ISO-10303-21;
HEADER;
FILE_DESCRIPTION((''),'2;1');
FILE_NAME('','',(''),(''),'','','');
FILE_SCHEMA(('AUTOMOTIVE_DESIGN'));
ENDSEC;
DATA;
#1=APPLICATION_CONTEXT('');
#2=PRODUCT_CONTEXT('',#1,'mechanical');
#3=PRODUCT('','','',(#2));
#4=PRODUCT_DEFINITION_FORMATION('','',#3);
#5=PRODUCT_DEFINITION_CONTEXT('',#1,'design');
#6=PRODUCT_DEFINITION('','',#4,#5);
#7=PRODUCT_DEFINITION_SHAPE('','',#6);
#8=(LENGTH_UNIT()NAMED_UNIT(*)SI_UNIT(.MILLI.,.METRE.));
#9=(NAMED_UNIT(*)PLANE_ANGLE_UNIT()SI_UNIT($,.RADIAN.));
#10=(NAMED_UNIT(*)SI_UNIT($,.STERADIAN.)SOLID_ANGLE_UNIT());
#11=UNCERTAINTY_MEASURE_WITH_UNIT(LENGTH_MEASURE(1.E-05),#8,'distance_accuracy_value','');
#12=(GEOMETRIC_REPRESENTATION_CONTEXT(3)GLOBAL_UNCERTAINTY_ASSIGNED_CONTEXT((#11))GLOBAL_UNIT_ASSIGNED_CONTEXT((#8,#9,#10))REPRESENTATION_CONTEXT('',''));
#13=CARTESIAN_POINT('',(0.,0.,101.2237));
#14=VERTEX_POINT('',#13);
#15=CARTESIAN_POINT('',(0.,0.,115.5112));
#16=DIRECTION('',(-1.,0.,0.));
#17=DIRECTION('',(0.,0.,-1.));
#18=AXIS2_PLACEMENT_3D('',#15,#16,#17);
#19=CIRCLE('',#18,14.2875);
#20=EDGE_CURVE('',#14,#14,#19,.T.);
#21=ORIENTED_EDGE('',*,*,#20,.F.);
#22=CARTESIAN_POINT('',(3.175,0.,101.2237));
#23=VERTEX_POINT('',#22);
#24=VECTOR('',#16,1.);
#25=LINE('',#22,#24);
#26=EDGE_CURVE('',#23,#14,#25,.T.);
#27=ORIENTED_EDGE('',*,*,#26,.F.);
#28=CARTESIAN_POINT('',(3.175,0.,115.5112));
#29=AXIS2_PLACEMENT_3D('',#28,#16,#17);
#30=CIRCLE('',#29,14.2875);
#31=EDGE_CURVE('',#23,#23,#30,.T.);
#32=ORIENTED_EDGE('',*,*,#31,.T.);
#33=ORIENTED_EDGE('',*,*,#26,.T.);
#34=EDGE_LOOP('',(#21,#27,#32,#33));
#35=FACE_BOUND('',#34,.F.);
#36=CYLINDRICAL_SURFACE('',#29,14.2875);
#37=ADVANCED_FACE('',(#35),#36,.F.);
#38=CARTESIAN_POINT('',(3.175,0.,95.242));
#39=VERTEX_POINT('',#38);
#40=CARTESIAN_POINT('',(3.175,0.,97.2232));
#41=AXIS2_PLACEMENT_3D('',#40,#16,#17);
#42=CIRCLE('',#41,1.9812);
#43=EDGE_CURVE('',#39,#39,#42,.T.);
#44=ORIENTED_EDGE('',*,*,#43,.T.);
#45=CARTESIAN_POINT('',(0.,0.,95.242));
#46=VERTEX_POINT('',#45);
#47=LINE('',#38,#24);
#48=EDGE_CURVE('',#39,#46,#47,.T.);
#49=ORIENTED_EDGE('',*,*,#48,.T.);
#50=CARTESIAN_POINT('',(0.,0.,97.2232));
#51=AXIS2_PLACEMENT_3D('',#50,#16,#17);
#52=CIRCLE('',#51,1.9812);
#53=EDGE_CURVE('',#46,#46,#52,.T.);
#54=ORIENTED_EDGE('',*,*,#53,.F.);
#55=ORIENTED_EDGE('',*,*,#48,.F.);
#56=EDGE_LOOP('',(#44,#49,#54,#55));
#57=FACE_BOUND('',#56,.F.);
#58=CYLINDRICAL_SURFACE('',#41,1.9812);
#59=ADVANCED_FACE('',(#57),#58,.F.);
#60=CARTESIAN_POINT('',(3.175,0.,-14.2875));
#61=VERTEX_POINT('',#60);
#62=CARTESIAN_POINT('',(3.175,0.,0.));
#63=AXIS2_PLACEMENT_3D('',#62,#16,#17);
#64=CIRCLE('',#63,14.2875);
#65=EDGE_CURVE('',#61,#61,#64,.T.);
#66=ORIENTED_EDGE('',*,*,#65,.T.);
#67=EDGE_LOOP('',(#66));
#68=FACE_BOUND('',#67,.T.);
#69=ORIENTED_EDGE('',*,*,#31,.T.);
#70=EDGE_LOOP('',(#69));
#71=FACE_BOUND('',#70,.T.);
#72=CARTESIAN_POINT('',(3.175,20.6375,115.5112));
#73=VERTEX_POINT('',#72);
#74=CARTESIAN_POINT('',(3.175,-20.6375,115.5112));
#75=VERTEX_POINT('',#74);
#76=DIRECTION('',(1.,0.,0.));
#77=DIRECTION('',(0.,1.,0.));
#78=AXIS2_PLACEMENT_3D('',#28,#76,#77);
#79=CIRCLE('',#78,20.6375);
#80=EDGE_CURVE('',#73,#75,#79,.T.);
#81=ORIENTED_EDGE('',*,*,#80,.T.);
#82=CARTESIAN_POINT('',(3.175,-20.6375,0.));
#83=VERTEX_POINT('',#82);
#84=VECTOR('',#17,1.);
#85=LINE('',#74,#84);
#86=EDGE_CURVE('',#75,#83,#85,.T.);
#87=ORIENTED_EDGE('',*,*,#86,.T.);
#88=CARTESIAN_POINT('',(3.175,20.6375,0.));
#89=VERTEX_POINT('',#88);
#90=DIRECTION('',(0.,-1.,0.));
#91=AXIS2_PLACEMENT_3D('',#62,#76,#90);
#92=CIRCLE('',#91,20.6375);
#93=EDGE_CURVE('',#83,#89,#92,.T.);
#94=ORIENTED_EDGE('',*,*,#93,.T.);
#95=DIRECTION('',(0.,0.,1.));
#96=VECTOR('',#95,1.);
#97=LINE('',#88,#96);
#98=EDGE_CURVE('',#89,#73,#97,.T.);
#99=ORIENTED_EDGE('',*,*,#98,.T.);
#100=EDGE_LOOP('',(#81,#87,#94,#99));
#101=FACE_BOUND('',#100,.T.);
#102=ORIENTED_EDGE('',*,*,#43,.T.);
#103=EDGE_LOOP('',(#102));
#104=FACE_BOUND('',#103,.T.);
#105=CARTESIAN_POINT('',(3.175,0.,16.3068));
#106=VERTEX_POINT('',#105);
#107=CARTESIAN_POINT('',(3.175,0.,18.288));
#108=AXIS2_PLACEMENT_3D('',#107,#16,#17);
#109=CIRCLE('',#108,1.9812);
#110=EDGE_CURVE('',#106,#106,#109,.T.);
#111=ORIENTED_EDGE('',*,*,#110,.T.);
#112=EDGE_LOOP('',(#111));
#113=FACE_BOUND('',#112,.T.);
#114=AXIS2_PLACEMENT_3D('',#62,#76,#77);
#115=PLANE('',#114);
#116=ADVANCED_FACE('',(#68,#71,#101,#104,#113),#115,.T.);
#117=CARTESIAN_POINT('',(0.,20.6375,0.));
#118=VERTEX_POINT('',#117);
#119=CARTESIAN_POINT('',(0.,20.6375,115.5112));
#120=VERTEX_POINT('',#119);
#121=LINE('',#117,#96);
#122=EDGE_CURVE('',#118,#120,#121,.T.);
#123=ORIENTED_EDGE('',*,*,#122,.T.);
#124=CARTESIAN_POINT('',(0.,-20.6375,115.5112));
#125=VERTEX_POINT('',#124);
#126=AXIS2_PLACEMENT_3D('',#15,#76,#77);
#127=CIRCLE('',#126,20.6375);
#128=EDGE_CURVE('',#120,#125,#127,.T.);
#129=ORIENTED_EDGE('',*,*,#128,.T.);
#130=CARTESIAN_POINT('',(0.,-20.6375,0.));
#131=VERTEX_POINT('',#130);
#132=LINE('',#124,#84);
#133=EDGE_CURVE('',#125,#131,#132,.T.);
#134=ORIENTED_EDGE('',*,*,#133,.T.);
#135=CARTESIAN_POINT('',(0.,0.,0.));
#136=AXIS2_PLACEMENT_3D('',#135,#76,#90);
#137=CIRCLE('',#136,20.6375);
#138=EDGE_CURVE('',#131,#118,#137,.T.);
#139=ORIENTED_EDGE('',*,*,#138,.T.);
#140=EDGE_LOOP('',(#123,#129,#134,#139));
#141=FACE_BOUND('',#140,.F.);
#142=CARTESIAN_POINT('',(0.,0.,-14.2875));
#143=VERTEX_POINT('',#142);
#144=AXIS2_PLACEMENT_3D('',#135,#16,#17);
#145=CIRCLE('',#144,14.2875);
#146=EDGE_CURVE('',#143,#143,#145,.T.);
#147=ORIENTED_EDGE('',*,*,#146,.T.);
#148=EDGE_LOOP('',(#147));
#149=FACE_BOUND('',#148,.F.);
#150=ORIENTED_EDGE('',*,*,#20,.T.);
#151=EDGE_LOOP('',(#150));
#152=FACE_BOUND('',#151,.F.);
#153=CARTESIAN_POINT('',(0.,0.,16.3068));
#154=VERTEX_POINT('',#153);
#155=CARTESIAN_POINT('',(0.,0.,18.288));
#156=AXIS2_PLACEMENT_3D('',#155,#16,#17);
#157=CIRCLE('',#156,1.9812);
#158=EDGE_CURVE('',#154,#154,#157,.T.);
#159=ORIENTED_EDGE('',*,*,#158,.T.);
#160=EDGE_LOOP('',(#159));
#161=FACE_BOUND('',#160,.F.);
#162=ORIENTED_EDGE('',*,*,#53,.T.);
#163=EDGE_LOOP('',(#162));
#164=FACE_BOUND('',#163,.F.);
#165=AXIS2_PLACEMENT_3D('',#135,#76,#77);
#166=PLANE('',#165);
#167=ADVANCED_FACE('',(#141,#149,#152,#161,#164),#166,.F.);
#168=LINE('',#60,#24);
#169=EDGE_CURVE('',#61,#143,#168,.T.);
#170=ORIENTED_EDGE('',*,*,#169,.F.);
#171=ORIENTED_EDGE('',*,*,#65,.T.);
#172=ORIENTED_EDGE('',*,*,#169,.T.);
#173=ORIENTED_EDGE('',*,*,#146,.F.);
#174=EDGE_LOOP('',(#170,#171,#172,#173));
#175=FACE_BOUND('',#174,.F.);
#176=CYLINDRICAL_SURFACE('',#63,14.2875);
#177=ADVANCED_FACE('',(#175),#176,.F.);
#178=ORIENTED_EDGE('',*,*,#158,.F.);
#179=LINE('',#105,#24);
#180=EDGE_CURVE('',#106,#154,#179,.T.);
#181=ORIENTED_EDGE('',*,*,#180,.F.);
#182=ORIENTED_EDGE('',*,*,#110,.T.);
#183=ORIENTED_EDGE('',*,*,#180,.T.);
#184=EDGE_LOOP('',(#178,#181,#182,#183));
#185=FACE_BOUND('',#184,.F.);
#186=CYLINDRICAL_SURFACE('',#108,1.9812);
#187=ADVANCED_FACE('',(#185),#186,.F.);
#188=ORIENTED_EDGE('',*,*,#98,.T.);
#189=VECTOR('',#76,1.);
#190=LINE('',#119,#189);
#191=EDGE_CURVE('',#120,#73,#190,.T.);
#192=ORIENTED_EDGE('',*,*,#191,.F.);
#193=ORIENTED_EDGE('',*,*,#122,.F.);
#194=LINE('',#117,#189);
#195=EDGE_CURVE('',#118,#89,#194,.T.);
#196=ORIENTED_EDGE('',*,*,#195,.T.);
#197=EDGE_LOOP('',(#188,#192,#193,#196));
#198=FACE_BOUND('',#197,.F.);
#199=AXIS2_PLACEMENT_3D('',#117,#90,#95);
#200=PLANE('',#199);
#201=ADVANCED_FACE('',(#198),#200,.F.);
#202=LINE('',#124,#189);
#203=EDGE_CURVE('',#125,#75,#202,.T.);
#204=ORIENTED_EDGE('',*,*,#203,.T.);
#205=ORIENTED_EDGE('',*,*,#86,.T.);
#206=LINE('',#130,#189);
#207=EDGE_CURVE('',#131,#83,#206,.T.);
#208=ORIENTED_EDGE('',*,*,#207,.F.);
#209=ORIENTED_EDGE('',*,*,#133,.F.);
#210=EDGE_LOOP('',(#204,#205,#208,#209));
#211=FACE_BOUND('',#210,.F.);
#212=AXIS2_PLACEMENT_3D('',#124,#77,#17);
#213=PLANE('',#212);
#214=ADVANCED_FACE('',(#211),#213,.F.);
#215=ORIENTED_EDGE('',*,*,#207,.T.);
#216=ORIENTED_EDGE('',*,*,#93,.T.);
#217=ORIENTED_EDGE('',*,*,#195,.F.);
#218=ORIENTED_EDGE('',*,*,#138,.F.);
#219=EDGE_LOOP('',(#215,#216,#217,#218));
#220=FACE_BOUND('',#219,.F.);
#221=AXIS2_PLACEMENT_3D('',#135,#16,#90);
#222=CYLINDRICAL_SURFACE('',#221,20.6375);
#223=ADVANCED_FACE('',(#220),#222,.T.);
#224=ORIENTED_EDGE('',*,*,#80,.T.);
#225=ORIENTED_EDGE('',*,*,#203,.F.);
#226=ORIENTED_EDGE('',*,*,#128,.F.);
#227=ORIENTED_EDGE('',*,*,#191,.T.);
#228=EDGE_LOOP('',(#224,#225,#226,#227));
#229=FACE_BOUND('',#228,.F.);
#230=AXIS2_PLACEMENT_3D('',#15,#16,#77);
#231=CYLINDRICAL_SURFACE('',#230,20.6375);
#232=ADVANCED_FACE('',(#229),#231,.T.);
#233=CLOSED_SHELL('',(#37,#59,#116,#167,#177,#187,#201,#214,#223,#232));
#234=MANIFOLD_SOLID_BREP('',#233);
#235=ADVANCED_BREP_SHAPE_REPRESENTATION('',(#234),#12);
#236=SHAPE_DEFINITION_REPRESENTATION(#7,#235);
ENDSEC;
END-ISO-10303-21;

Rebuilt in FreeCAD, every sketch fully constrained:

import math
import FreeCAD as App
import Part
import Sketcher

V = App.Vector
Q = App.Units.Quantity

doc = App.newDocument("Part")
params = doc.addObject("Spreadsheet::Sheet", "Params")
for row, (alias, value) in enumerate([
    ("sketch1_radius", "0.8125 in"),
    ("pad1_length", "0.125 in"),
    ("sketch2_diameter", "1.125 in"),
    ("hole_diameter", "1.125 in"),
    ("hole_depth", "0.125 in"),
    ("sketch3_diameter", "0.156 in"),
    ("hole2_diameter", "0.156 in"),
    ("hole2_depth", "0.536 in"),
], start=1):
    params.set(f"A{row}", alias)
    params.set(f"B{row}", "=" + value)
    params.setAlias(f"B{row}", alias)

body = doc.addObject("PartDesign::Body", "Body")

sketch1 = body.newObject("Sketcher::SketchObject", "Sketch")
sketch1.AttachmentSupport = (doc.getObject("YZ_Plane"), [""])
sketch1.MapMode = "FlatFace"
sketch1.addGeometry([
    Part.LineSegment(V(-20.6375, 115.5112, 0), V(-20.6375, 0, 0)),
    Part.ArcOfCircle(Part.Circle(V(0, 0, 0), V(0, 0, 1), 20.6375), math.radians(180), math.radians(360)),
    Part.LineSegment(V(20.6375, 0, 0), V(20.6375, 115.5112, 0)),
    Part.ArcOfCircle(Part.Circle(V(0, 115.5112, 0), V(0, 0, 1), 20.6375), math.radians(0), math.radians(180)),
], False)
sketch1.addConstraint([
    Sketcher.Constraint("Tangent", 0, 2, 1, 1),
    Sketcher.Constraint("Tangent", 1, 2, 2, 1),
    Sketcher.Constraint("Tangent", 2, 2, 3, 1),
    Sketcher.Constraint("Tangent", 3, 2, 0, 1),
    Sketcher.Constraint("Vertical", 0),
    Sketcher.Constraint("Vertical", 2),
    Sketcher.Constraint("Coincident", 1, 3, -1, 1),
    Sketcher.Constraint("Radius", 1, Q("0.8125 in")),
    Sketcher.Constraint("DistanceY", 0, 2, 0, 1, 115.5112),
])
sketch1.setExpression("Constraints[7]", "Params.sketch1_radius")
pad1 = body.newObject("PartDesign::Pad", "Pad")
pad1.Profile = sketch1
pad1.setExpression("Length", "Params.pad1_length")

sketch2 = body.newObject("Sketcher::SketchObject", "Sketch001")
sketch2.AttachmentSupport = (doc.getObject("YZ_Plane"), [""])
sketch2.MapMode = "FlatFace"
sketch2.AttachmentOffset = App.Placement(V(0, 0, 0.125 * 25.4), App.Rotation())
sketch2.addGeometry([
    Part.Circle(V(0, 0, 0), V(0, 0, 1), 14.2875),
    Part.Circle(V(0, 115.5112, 0), V(0, 0, 1), 14.2875),
], False)
sketch2.addConstraint([
    Sketcher.Constraint("Coincident", 0, 3, -1, 1),
    Sketcher.Constraint("Equal", 0, 1),
    Sketcher.Constraint("PointOnObject", 1, 3, -2),
    Sketcher.Constraint("Diameter", 0, Q("1.125 in")),
    Sketcher.Constraint("DistanceY", -1, 1, 1, 3, 115.5112),
])
sketch2.setExpression("Constraints[3]", "Params.sketch2_diameter")
doc.recompute()
hole = body.newObject("PartDesign::Hole", "Hole")
hole.Profile = sketch2
hole.ThreadType = "None"
hole.setExpression("Diameter", "Params.hole_diameter")
hole.DepthType = "Dimension"
hole.setExpression("Depth", "Params.hole_depth")
hole.DrillPoint = "Angled"
hole.DrillPointAngle = 118

sketch3 = body.newObject("Sketcher::SketchObject", "Sketch002")
sketch3.AttachmentSupport = (doc.getObject("YZ_Plane"), [""])
sketch3.MapMode = "FlatFace"
sketch3.AttachmentOffset = App.Placement(V(0, 0, 0.125 * 25.4), App.Rotation())
sketch3.addGeometry([
    Part.Circle(V(0, 18.288, 0), V(0, 0, 1), 1.9812),
    Part.Circle(V(0, 97.2232, 0), V(0, 0, 1), 1.9812),
], False)
sketch3.addConstraint([
    Sketcher.Constraint("Equal", 0, 1),
    Sketcher.Constraint("PointOnObject", 0, 3, -2),
    Sketcher.Constraint("PointOnObject", 1, 3, -2),
    Sketcher.Constraint("Diameter", 0, Q("0.156 in")),
    Sketcher.Constraint("DistanceY", -1, 1, 0, 3, Q("0.72 in")),
    Sketcher.Constraint("DistanceY", -1, 1, 1, 3, 97.2232),
])
sketch3.setExpression("Constraints[3]", "Params.sketch3_diameter")
doc.recompute()
hole2 = body.newObject("PartDesign::Hole", "Hole001")
hole2.Profile = sketch3
hole2.ThreadType = "None"
hole2.setExpression("Diameter", "Params.hole2_diameter")
hole2.DepthType = "Dimension"
hole2.setExpression("Depth", "Params.hole2_depth")
hole2.DrillPoint = "Angled"
hole2.DrillPointAngle = 118

doc.recompute()
